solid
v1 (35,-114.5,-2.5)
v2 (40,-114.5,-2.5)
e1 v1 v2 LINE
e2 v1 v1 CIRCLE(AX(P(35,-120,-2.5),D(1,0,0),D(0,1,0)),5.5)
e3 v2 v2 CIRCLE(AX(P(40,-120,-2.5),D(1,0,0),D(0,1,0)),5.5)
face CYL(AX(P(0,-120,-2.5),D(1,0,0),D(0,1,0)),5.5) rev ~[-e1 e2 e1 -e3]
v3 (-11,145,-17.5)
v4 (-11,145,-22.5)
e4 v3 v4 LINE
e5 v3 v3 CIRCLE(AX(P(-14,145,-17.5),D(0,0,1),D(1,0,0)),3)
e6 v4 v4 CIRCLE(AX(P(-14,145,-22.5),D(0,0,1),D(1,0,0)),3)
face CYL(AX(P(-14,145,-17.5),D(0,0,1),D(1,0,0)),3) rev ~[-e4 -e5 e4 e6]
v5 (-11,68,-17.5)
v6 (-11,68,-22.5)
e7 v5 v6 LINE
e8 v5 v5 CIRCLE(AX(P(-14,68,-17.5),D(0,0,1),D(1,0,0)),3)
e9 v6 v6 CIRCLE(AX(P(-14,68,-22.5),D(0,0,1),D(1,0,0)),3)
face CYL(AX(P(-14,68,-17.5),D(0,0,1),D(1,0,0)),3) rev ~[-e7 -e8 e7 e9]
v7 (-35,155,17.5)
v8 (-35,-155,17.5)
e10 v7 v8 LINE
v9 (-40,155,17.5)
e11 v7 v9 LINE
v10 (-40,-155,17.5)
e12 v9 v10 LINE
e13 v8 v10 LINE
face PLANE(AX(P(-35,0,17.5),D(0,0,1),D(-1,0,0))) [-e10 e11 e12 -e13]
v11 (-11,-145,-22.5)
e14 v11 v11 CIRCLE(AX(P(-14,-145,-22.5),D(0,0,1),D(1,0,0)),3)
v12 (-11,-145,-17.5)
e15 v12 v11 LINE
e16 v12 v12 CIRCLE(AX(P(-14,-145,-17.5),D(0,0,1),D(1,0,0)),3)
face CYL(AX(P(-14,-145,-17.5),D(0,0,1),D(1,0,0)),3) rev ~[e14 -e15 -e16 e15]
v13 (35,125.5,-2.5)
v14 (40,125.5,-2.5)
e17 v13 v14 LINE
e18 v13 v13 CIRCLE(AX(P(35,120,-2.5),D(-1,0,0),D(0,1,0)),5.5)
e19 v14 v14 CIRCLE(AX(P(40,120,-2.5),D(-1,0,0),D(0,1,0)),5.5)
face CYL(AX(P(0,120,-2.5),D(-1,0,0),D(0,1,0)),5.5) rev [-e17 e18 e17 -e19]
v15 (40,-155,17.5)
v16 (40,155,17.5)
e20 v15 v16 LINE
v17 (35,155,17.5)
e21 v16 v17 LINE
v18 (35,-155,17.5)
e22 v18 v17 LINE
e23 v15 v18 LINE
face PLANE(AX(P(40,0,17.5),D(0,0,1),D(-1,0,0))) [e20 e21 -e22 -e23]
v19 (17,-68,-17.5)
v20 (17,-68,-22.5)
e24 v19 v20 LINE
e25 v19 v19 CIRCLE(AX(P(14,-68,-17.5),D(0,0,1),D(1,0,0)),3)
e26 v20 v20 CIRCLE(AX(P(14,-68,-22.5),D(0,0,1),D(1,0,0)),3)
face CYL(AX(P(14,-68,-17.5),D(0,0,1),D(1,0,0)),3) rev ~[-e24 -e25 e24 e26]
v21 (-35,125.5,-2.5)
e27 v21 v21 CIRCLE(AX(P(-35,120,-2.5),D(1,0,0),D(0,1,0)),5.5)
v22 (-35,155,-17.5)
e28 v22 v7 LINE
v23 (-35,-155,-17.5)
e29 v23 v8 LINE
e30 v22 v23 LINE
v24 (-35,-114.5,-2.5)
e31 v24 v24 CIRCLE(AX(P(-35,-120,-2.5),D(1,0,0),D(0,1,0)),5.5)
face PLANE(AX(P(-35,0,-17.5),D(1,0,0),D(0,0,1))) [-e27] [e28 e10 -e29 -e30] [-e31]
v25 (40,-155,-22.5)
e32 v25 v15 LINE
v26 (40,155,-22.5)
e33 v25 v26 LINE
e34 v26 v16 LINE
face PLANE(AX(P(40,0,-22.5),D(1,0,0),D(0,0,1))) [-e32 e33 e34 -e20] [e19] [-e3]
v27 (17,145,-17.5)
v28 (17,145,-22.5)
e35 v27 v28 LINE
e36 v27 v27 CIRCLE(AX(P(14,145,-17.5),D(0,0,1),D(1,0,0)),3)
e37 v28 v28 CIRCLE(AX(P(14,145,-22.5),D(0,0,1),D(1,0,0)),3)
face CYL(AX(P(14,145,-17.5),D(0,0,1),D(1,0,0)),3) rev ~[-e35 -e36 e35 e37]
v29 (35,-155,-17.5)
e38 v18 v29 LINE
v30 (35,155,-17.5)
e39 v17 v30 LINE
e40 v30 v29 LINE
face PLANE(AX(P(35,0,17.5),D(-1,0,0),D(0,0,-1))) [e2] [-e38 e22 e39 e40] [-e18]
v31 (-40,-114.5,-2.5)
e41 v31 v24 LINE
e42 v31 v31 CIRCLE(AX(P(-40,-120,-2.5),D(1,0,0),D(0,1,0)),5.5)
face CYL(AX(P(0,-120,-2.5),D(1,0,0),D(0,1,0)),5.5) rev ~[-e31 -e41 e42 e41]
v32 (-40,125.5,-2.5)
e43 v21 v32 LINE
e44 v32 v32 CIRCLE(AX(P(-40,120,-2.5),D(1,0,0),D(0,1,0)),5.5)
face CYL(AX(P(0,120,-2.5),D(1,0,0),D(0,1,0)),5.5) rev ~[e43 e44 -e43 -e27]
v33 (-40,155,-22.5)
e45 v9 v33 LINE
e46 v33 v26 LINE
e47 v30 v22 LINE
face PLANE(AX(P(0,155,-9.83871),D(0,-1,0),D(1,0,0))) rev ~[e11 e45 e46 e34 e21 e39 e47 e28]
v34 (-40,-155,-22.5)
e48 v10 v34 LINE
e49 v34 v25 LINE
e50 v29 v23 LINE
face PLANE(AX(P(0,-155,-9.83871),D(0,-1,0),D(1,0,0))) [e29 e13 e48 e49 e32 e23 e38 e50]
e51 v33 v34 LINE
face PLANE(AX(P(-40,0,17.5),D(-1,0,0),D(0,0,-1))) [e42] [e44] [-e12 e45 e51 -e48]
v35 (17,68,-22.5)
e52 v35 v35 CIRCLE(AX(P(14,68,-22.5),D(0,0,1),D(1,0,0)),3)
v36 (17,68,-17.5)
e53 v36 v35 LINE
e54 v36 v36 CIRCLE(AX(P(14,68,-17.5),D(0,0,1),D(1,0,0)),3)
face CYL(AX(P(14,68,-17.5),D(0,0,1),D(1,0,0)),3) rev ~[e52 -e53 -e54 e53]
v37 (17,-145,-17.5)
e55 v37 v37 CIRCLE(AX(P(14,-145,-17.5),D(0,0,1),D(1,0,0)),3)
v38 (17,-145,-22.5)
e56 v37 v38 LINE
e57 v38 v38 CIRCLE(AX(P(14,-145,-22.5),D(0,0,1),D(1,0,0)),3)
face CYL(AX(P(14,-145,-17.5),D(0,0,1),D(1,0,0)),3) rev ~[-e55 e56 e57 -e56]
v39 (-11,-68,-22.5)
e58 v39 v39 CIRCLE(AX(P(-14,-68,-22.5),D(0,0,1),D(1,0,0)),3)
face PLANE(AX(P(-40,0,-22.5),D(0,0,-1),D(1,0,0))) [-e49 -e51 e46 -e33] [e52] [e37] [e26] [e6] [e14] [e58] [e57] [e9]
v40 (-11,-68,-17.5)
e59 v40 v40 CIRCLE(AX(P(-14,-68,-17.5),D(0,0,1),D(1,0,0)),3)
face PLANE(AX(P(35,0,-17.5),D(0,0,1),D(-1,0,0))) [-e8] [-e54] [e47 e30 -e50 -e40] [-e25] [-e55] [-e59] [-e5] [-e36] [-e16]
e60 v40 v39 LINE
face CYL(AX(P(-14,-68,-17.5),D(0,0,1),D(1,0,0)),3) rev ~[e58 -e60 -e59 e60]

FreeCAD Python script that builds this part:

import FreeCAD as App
import Part
import Sketcher
Q = App.Units.Quantity


def add_polygon(sketch, points):
    """Adds a closed chain of lines whose ends are joined by coincident constraints."""
    first, n = sketch.GeometryCount, len(points)
    for a, b in zip(points, points[1:] + points[:1]):
        sketch.addGeometry(Part.LineSegment(App.Vector(*a, 0), App.Vector(*b, 0)), False)
    for i in range(n):
        sketch.addConstraint(Sketcher.Constraint("Coincident", first + i, 2, first + (i + 1) % n, 1))

doc = App.newDocument("Part")
body = doc.addObject("PartDesign::Body", "Body")

# Sketch on XZ plane
sketch1 = body.newObject("Sketcher::SketchObject", "Sketch")
sketch1.AttachmentSupport = (doc.getObject("XZ_Plane"), [""])
sketch1.MapMode = "FlatFace"
add_polygon(sketch1, [(35, 17.5), (35, -17.5), (-35, -17.5), (-35, 17.5), (-40, 17.5), (-40, -22.5), (40, -22.5), (40, 17.5)])  # lines 0-7
sketch1.addConstraint([
    Sketcher.Constraint("Vertical", 0),
    Sketcher.Constraint("Horizontal", 1),
    Sketcher.Constraint("Vertical", 2),
    Sketcher.Constraint("Horizontal", 3),
    Sketcher.Constraint("Vertical", 4),
    Sketcher.Constraint("Horizontal", 5),
    Sketcher.Constraint("Vertical", 6),
    Sketcher.Constraint("Horizontal", 7),
    Sketcher.Constraint("Symmetric", 0, 2, 2, 2, -1, 1),
    Sketcher.Constraint("Symmetric", 3, 2, 6, 2, -2),
    Sketcher.Constraint("DistanceX", 1, 2, 1, 1, Q("70 mm")),
    Sketcher.Constraint("DistanceX", 3, 2, 3, 1, Q("5 mm")),
    Sketcher.Constraint("DistanceY", 0, 2, 0, 1, Q("35 mm")),
    Sketcher.Constraint("DistanceY", 4, 2, 4, 1, Q("40 mm")),
])
pad1 = body.newObject("PartDesign::Pad", "Pad")
pad1.Profile = sketch1
pad1.Length = 310
pad1.Midplane = True

# Sketch on YZ plane
sketch2 = body.newObject("Sketcher::SketchObject", "Sketch001")
sketch2.AttachmentSupport = (doc.getObject("YZ_Plane"), [""])
sketch2.MapMode = "FlatFace"
sketch2.addGeometry([
    Part.Circle(App.Vector(120, -2.5, 0), App.Vector(0, 0, 1), 5.5),
    Part.Circle(App.Vector(-120, -2.5, 0), App.Vector(0, 0, 1), 5.5),
], False)
sketch2.addConstraint([
    Sketcher.Constraint("Equal", 0, 1),
    Sketcher.Constraint("Symmetric", 0, 3, 1, 3, -2),
    Sketcher.Constraint("Diameter", 0, Q("11 mm")),
    Sketcher.Constraint("DistanceX", -1, 1, 0, 3, Q("120 mm")),
    Sketcher.Constraint("DistanceY", 0, 3, -1, 1, Q("2.5 mm")),
])
pocket1 = body.newObject("PartDesign::Pocket", "Pocket")
pocket1.Profile = sketch2
pocket1.Length = 100
pocket1.Midplane = True

# Sketch on XY plane
sketch3 = body.newObject("Sketcher::SketchObject", "Sketch002")
sketch3.AttachmentSupport = (doc.getObject("XY_Plane"), [""])
sketch3.MapMode = "FlatFace"
sketch3.AttachmentOffset = App.Placement(App.Vector(0, 0, -17.5), App.Rotation())
sketch3.addGeometry([
    Part.Circle(App.Vector(-14, 145, 0), App.Vector(0, 0, 1), 3),  # 0
    Part.Circle(App.Vector(14, 145, 0), App.Vector(0, 0, 1), 3),  # 1
    Part.Circle(App.Vector(-14, 68, 0), App.Vector(0, 0, 1), 3),  # 2
    Part.Circle(App.Vector(14, 68, 0), App.Vector(0, 0, 1), 3),  # 3
    Part.Circle(App.Vector(-14, -68, 0), App.Vector(0, 0, 1), 3),  # 4
    Part.Circle(App.Vector(14, -68, 0), App.Vector(0, 0, 1), 3),  # 5
    Part.Circle(App.Vector(-14, -145, 0), App.Vector(0, 0, 1), 3),  # 6
    Part.Circle(App.Vector(14, -145, 0), App.Vector(0, 0, 1), 3),  # 7
], False)
sketch3.addConstraint([
    Sketcher.Constraint("Equal", 0, 1),
    Sketcher.Constraint("Equal", 1, 2),
    Sketcher.Constraint("Equal", 2, 3),
    Sketcher.Constraint("Equal", 3, 4),
    Sketcher.Constraint("Equal", 4, 5),
    Sketcher.Constraint("Equal", 5, 6),
    Sketcher.Constraint("Equal", 6, 7),
    Sketcher.Constraint("Symmetric", 3, 3, 4, 3, -1, 1),
    Sketcher.Constraint("Symmetric", 2, 3, 5, 3, -1, 1),
    Sketcher.Constraint("Symmetric", 1, 3, 6, 3, -1, 1),
    Sketcher.Constraint("Symmetric", 0, 3, 7, 3, -1, 1),
    Sketcher.Constraint("Symmetric", 0, 3, 1, 3, -2),
    Sketcher.Constraint("Symmetric", 2, 3, 3, 3, -2),
    Sketcher.Constraint("Vertical", 0, 3, 2, 3),
    Sketcher.Constraint("Diameter", 0, Q("6 mm")),
    Sketcher.Constraint("DistanceX", 0, 3, -1, 1, Q("14 mm")),
    Sketcher.Constraint("DistanceY", -1, 1, 0, 3, Q("145 mm")),
    Sketcher.Constraint("DistanceY", -1, 1, 2, 3, Q("68 mm")),
])
pocket2 = body.newObject("PartDesign::Pocket", "Pocket001")
pocket2.Profile = sketch3
pocket2.Length = 25

doc.recompute()
